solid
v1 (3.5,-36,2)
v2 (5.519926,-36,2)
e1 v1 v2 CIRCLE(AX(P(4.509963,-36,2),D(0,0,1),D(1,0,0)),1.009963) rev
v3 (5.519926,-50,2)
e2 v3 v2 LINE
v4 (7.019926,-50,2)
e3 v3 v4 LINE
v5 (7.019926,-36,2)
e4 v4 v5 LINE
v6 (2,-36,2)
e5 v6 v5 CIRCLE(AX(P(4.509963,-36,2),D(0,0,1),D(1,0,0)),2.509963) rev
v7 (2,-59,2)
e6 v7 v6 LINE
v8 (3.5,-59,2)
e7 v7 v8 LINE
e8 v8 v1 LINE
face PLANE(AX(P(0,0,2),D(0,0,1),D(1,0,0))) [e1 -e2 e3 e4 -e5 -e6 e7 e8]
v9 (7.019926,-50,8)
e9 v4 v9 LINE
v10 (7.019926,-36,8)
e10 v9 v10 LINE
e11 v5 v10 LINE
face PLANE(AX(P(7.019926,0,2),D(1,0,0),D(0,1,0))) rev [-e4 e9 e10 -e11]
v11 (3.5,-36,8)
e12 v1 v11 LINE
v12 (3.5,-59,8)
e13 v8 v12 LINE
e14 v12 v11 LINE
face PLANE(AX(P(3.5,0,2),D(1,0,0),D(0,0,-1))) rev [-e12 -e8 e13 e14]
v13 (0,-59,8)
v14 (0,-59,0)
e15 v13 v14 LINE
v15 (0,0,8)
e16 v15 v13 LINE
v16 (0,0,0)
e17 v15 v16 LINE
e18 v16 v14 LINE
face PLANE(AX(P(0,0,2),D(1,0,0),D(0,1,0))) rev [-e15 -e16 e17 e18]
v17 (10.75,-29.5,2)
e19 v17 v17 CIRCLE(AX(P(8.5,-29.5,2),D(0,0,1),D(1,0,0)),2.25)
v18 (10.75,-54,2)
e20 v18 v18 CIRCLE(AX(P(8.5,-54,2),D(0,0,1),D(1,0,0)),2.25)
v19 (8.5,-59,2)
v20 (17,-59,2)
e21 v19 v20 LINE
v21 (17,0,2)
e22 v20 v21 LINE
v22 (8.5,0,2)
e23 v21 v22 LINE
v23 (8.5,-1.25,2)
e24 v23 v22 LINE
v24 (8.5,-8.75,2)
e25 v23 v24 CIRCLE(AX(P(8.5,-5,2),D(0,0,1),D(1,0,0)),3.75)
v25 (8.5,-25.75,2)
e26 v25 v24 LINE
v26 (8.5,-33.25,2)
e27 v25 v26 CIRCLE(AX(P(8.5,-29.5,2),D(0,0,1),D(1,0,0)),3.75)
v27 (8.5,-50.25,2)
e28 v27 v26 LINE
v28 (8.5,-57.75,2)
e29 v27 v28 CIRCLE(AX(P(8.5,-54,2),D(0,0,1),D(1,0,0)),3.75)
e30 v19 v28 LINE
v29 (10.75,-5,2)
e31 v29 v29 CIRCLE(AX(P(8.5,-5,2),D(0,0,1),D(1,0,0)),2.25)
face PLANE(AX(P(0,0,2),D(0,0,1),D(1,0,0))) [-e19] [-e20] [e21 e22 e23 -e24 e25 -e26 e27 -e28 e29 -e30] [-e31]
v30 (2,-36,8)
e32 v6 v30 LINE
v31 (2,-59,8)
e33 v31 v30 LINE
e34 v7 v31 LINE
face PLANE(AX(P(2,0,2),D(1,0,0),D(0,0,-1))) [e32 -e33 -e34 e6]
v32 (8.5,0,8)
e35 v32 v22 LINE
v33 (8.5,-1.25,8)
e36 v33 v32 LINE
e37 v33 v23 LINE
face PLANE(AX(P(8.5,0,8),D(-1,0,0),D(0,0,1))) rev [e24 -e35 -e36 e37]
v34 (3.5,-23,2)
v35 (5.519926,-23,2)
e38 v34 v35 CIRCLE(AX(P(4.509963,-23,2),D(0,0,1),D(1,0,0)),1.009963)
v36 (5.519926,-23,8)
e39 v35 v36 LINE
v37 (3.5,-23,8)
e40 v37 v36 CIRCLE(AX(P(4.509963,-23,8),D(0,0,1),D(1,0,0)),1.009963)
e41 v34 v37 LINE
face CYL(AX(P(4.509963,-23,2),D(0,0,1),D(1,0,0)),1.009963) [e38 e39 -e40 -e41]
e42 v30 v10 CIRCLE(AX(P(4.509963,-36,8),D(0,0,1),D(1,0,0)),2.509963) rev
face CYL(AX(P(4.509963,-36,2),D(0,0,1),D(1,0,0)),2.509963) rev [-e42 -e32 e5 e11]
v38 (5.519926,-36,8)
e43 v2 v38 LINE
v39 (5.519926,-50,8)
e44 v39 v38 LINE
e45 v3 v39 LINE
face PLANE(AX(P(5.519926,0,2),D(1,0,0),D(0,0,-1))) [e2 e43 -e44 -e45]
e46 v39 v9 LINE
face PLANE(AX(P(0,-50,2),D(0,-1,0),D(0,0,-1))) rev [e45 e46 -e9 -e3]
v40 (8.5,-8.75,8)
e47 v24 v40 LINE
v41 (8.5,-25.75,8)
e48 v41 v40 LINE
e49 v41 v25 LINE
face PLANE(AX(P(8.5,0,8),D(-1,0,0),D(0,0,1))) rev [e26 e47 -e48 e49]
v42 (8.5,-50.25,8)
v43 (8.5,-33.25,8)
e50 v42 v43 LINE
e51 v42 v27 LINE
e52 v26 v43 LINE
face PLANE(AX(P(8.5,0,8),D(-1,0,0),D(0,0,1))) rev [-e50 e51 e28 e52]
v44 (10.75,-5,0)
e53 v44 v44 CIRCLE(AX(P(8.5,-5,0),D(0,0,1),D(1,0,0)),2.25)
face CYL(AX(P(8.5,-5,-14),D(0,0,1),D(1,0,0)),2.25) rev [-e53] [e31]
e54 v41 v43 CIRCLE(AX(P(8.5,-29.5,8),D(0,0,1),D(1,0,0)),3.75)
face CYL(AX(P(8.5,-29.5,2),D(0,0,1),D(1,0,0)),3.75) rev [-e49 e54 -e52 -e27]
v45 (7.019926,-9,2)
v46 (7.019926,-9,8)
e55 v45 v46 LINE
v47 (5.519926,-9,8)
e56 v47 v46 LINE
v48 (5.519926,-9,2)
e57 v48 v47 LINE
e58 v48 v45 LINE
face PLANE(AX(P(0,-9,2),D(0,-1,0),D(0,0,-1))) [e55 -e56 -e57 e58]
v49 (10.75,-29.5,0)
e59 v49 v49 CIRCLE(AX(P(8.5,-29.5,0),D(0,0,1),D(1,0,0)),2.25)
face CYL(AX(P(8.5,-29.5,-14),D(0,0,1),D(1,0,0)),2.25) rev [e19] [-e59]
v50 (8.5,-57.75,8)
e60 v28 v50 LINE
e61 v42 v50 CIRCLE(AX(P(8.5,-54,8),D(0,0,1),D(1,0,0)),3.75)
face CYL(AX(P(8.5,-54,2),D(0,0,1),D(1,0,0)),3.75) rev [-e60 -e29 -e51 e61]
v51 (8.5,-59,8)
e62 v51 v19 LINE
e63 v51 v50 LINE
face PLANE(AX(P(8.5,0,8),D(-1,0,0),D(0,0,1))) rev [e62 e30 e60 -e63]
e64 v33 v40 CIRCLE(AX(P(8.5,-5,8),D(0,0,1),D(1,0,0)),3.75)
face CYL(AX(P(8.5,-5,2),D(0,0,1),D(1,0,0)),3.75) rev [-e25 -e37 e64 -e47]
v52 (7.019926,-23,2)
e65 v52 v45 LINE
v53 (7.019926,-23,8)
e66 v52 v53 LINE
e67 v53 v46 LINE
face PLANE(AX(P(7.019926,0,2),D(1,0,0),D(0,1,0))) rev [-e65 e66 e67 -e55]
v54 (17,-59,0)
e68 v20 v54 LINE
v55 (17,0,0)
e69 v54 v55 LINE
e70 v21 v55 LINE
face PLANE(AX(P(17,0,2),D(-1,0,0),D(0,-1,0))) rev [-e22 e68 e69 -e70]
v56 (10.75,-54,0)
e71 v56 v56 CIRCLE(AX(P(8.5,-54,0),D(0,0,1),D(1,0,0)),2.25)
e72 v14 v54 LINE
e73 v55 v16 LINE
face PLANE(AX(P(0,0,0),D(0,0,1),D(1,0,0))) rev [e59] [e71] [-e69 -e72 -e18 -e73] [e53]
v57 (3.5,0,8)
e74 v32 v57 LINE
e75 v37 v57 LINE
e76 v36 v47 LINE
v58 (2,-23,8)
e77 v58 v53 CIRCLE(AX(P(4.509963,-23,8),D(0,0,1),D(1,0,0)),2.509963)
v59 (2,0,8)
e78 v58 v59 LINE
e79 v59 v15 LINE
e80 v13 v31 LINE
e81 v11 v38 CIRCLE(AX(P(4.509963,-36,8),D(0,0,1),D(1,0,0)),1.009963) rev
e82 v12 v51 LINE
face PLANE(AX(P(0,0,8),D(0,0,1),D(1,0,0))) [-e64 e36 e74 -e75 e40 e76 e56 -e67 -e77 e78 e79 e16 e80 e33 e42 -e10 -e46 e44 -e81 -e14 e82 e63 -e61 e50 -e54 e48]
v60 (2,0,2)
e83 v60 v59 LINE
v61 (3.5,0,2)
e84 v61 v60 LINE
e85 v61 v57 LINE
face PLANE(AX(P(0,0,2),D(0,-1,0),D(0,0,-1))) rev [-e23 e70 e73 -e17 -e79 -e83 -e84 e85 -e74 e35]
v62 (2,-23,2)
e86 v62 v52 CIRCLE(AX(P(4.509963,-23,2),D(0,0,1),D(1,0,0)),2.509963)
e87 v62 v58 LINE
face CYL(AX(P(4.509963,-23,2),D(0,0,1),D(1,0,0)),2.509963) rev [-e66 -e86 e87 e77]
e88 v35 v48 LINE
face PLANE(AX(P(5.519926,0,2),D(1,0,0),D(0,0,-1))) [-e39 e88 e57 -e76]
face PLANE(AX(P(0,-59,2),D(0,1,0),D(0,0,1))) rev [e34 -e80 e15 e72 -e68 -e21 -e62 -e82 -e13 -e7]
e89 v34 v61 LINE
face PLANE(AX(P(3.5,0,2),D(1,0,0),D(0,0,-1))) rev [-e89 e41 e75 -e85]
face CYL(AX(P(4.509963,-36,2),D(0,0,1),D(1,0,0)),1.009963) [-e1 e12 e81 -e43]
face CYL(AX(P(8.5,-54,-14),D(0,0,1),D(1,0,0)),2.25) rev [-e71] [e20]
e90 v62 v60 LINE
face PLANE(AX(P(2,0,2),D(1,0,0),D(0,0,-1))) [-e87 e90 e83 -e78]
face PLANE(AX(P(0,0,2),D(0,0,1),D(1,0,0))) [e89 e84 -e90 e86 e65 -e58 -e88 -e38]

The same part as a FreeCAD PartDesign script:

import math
import FreeCAD as App
import Part
import Sketcher

V = App.Vector


def add_polygon(sketch, points):
    """Adds a closed chain of lines whose ends are joined by coincident constraints."""
    first, n = sketch.GeometryCount, len(points)
    for a, b in zip(points, points[1:] + points[:1]):
        sketch.addGeometry(Part.LineSegment(App.Vector(*a, 0), App.Vector(*b, 0)), False)
    for i in range(n):
        sketch.addConstraint(Sketcher.Constraint("Coincident", first + i, 2, first + (i + 1) % n, 1))

doc = App.newDocument("Part")
body = doc.addObject("PartDesign::Body", "Body")

# Sketch on XY plane
sketch1 = body.newObject("Sketcher::SketchObject", "Sketch")
sketch1.AttachmentSupport = (doc.getObject("XY_Plane"), [""])
sketch1.MapMode = "FlatFace"
add_polygon(sketch1, [(0, 0), (0, -59), (17, -59), (17, 0)])  # lines 0-3
sketch1.addConstraint(Sketcher.Constraint("Vertical", 0))
sketch1.addConstraint(Sketcher.Constraint("Horizontal", 1))
sketch1.addConstraint(Sketcher.Constraint("Vertical", 2))
sketch1.addConstraint(Sketcher.Constraint("Horizontal", 3))
sketch1.addConstraint(Sketcher.Constraint("Coincident", 3, 2, -1, 1))
sketch1.addConstraint(Sketcher.Constraint("DistanceX", 1, 1, 1, 2, 17.0))
sketch1.addConstraint(Sketcher.Constraint("DistanceY", 0, 2, 0, 1, 59.0))
pad1 = body.newObject("PartDesign::Pad", "Pad")
pad1.Profile = sketch1
pad1.Length = 2

# Sketch on XY plane
sketch2 = body.newObject("Sketcher::SketchObject", "Sketch001")
sketch2.AttachmentSupport = (doc.getObject("XY_Plane"), [""])
sketch2.MapMode = "FlatFace"
sketch2.AttachmentOffset = App.Placement(V(0, 0, 2), App.Rotation())
add_polygon(sketch2, [(0, 0), (0, -59), (8, -59), (8, 0)])  # lines 0-3
sketch2.addConstraint(Sketcher.Constraint("Vertical", 0))
sketch2.addConstraint(Sketcher.Constraint("Horizontal", 1))
sketch2.addConstraint(Sketcher.Constraint("Vertical", 2))
sketch2.addConstraint(Sketcher.Constraint("Horizontal", 3))
sketch2.addConstraint(Sketcher.Constraint("Coincident", 3, 2, -1, 1))
sketch2.addConstraint(Sketcher.Constraint("DistanceY", 0, 2, 0, 1, 59.0))
sketch2.addConstraint(Sketcher.Constraint("DistanceX", 1, 1, 1, 2, 8.5))
pad2 = body.newObject("PartDesign::Pad", "Pad001")
pad2.Profile = sketch2
pad2.Length = 6

# Sketch on XY plane
sketch3 = body.newObject("Sketcher::SketchObject", "Sketch002")
sketch3.AttachmentSupport = (doc.getObject("XY_Plane"), [""])
sketch3.MapMode = "FlatFace"
sketch3.AttachmentOffset = App.Placement(V(0, 0, 8), App.Rotation())
sketch3.addGeometry(Part.LineSegment(V(2, -36, 0), V(2, -59, 0)), False)
sketch3.addGeometry(Part.LineSegment(V(2, -59, 0), V(3.5, -59, 0)), False)
sketch3.addGeometry(Part.LineSegment(V(3.5, -59, 0), V(3.5, -36, 0)), False)
sketch3.addGeometry(Part.ArcOfCircle(Part.Circle(V(4.5, -36, 0), V(0, 0, 1), 1), math.radians(0), math.radians(180)), False)
sketch3.addGeometry(Part.LineSegment(V(5.5, -36, 0), V(5.5, -50, 0)), False)
sketch3.addGeometry(Part.LineSegment(V(5.5, -50, 0), V(7, -50, 0)), False)
sketch3.addGeometry(Part.LineSegment(V(7, -50, 0), V(7, -36, 0)), False)
sketch3.addGeometry(Part.ArcOfCircle(Part.Circle(V(4.5, -36, 0), V(0, 0, 1), 2.5), math.radians(0), math.radians(66)), False)
sketch3.addGeometry(Part.ArcOfCircle(Part.Circle(V(4.5, -36, 0), V(0, 0, 1), 2.5), math.radians(66), math.radians(114)), False)
sketch3.addGeometry(Part.ArcOfCircle(Part.Circle(V(4.5, -36, 0), V(0, 0, 1), 2.5), math.radians(114), math.radians(180)), False)
sketch3.addGeometry(Part.LineSegment(V(5.5, -9, 0), V(5.5, -23, 0)), False)
sketch3.addGeometry(Part.ArcOfCircle(Part.Circle(V(4.5, -23, 0), V(0, 0, 1), 1), math.radians(180), math.radians(360)), False)
sketch3.addGeometry(Part.LineSegment(V(3.5, -23, 0), V(3.5, 0, 0)), False)
sketch3.addGeometry(Part.LineSegment(V(3.5, 0, 0), V(2, 0, 0)), False)
sketch3.addGeometry(Part.LineSegment(V(2, 0, 0), V(2, -23, 0)), False)
sketch3.addGeometry(Part.ArcOfCircle(Part.Circle(V(4.5, -23, 0), V(0, 0, 1), 2.5), math.radians(180), math.radians(246)), False)
sketch3.addGeometry(Part.ArcOfCircle(Part.Circle(V(4.5, -23, 0), V(0, 0, 1), 2.5), math.radians(-114), math.radians(-66)), False)
sketch3.addGeometry(Part.ArcOfCircle(Part.Circle(V(4.5, -23, 0), V(0, 0, 1), 2.5), math.radians(-66), math.radians(0)), False)
sketch3.addGeometry(Part.LineSegment(V(7, -23, 0), V(7, -9, 0)), False)
sketch3.addGeometry(Part.LineSegment(V(7, -9, 0), V(5.5, -9, 0)), False)
sketch3.addConstraint(Sketcher.Constraint("Coincident", 0, 2, 1, 1))
sketch3.addConstraint(Sketcher.Constraint("Coincident", 1, 2, 2, 1))
sketch3.addConstraint(Sketcher.Constraint("Tangent", 2, 2, 3, 2))
sketch3.addConstraint(Sketcher.Constraint("Tangent", 3, 1, 4, 1))
sketch3.addConstraint(Sketcher.Constraint("Coincident", 4, 2, 5, 1))
sketch3.addConstraint(Sketcher.Constraint("Coincident", 5, 2, 6, 1))
sketch3.addConstraint(Sketcher.Constraint("Tangent", 6, 2, 7, 1))
sketch3.addConstraint(Sketcher.Constraint("Tangent", 7, 2, 8, 1))
sketch3.addConstraint(Sketcher.Constraint("Tangent", 8, 2, 9, 1))
sketch3.addConstraint(Sketcher.Constraint("Tangent", 9, 2, 0, 1))
sketch3.addConstraint(Sketcher.Constraint("Tangent", 10, 2, 11, 2))
sketch3.addConstraint(Sketcher.Constraint("Tangent", 11, 1, 12, 1))
sketch3.addConstraint(Sketcher.Constraint("Coincident", 12, 2, 13, 1))
sketch3.addConstraint(Sketcher.Constraint("Coincident", 13, 2, 14, 1))
sketch3.addConstraint(Sketcher.Constraint("Tangent", 14, 2, 15, 1))
sketch3.addConstraint(Sketcher.Constraint("Tangent", 15, 2, 16, 1))
sketch3.addConstraint(Sketcher.Constraint("Tangent", 16, 2, 17, 1))
sketch3.addConstraint(Sketcher.Constraint("Tangent", 17, 2, 18, 1))
sketch3.addConstraint(Sketcher.Constraint("Coincident", 18, 2, 19, 1))
sketch3.addConstraint(Sketcher.Constraint("Coincident", 19, 2, 10, 1))
sketch3.addConstraint(Sketcher.Constraint("Vertical", 0))
sketch3.addConstraint(Sketcher.Constraint("Horizontal", 1))
sketch3.addConstraint(Sketcher.Constraint("Vertical", 2))
sketch3.addConstraint(Sketcher.Constraint("Vertical", 4))
sketch3.addConstraint(Sketcher.Constraint("Horizontal", 5))
sketch3.addConstraint(Sketcher.Constraint("Vertical", 6))
sketch3.addConstraint(Sketcher.Constraint("Vertical", 10))
sketch3.addConstraint(Sketcher.Constraint("Vertical", 12))
sketch3.addConstraint(Sketcher.Constraint("Horizontal", 13))
sketch3.addConstraint(Sketcher.Constraint("Vertical", 14))
sketch3.addConstraint(Sketcher.Constraint("Vertical", 18))
sketch3.addConstraint(Sketcher.Constraint("Horizontal", 19))
sketch3.addConstraint(Sketcher.Constraint("Coincident", 7, 3, 3, 3))
sketch3.addConstraint(Sketcher.Constraint("Coincident", 9, 3, 3, 3))
sketch3.addConstraint(Sketcher.Constraint("Coincident", 15, 3, 11, 3))
sketch3.addConstraint(Sketcher.Constraint("Coincident", 17, 3, 11, 3))
sketch3.addConstraint(Sketcher.Constraint("Equal", 3, 11))
sketch3.addConstraint(Sketcher.Constraint("Equal", 9, 15))
sketch3.addConstraint(Sketcher.Constraint("PointOnObject", 12, 2, -1))
sketch3.addConstraint(Sketcher.Constraint("Horizontal", 7, 2, 8, 2))
sketch3.addConstraint(Sketcher.Constraint("Horizontal", 15, 2, 16, 2))
sketch3.addConstraint(Sketcher.Constraint("Vertical", 9, 3, 11, 3))
sketch3.addConstraint(Sketcher.Constraint("Vertical", 4, 2, 7, 2))
sketch3.addConstraint(Sketcher.Constraint("Vertical", 12, 2, 15, 2))
sketch3.addConstraint(Sketcher.Constraint("Equal", 6, 10))
sketch3.addConstraint(Sketcher.Constraint("Equal", 2, 12))
sketch3.addConstraint(Sketcher.Constraint("DistanceY", 0, 2, 0, 1, 23.0))
sketch3.addConstraint(Sketcher.Constraint("DistanceY", 4, 2, 4, 1, 14.0))
sketch3.addConstraint(Sketcher.Constraint("DistanceX", 1, 1, 1, 2, 1.5))
sketch3.addConstraint(Sketcher.Constraint("DistanceY", 3, 3, -1, 1, 36.0))
sketch3.addConstraint(Sketcher.Constraint("DistanceX", -1, 1, 0, 2, 2.0))
sketch3.addConstraint(Sketcher.Constraint("Radius", 3, 1.009963))
pocket1 = body.newObject("PartDesign::Pocket", "Pocket")
pocket1.Profile = sketch3
pocket1.Length = 6

# Sketch on XY plane
sketch4 = body.newObject("Sketcher::SketchObject", "Sketch003")
sketch4.AttachmentSupport = (doc.getObject("XY_Plane"), [""])
sketch4.MapMode = "FlatFace"
sketch4.AttachmentOffset = App.Placement(V(0, 0, 8), App.Rotation())
sketch4.addGeometry(Part.Circle(V(8.5, -29.5, 0), V(0, 0, 1), 2.2), False)
sketch4.addGeometry(Part.Circle(V(8.5, -54, 0), V(0, 0, 1), 2.2), False)
sketch4.addGeometry(Part.Circle(V(8.5, -5, 0), V(0, 0, 1), 2.2), False)
sketch4.addConstraint(Sketcher.Constraint("Equal", 0, 1))
sketch4.addConstraint(Sketcher.Constraint("Equal", 1, 2))
sketch4.addConstraint(Sketcher.Constraint("Vertical", 0, 3, 1, 3))
sketch4.addConstraint(Sketcher.Constraint("Vertical", 1, 3, 2, 3))
sketch4.addConstraint(Sketcher.Constraint("Diameter", 0, 4.5))
sketch4.addConstraint(Sketcher.Constraint("DistanceY", 1, 3, -1, 1, 54.0))
sketch4.addConstraint(Sketcher.Constraint("DistanceY", 2, 3, -1, 1, 5.0))
sketch4.addConstraint(Sketcher.Constraint("DistanceX", -1, 1, 0, 3, 8.5))
sketch4.addConstraint(Sketcher.Constraint("DistanceY", 0, 3, -1, 1, 29.5))
pocket2 = body.newObject("PartDesign::Pocket", "Pocket001")
pocket2.Profile = sketch4
pocket2.Length = 22

# Sketch on XY plane
sketch5 = body.newObject("Sketcher::SketchObject", "Sketch004")
sketch5.AttachmentSupport = (doc.getObject("XY_Plane"), [""])
sketch5.MapMode = "FlatFace"
sketch5.AttachmentOffset = App.Placement(V(0, 0, 8), App.Rotation())
sketch5.addGeometry(Part.Circle(V(8.5, -29.5, 0), V(0, 0, 1), 3.8), False)
sketch5.addGeometry(Part.Circle(V(8.5, -5, 0), V(0, 0, 1), 3.8), False)
sketch5.addGeometry(Part.Circle(V(8.5, -54, 0), V(0, 0, 1), 3.8), False)
sketch5.addConstraint(Sketcher.Constraint("Equal", 0, 1))
sketch5.addConstraint(Sketcher.Constraint("Equal", 1, 2))
sketch5.addConstraint(Sketcher.Constraint("Vertical", 0, 3, 1, 3))
sketch5.addConstraint(Sketcher.Constraint("Vertical", 1, 3, 2, 3))
sketch5.addConstraint(Sketcher.Constraint("Diameter", 0, 7.5))
sketch5.addConstraint(Sketcher.Constraint("DistanceY", 1, 3, -1, 1, 5.0))
sketch5.addConstraint(Sketcher.Constraint("DistanceY", 2, 3, -1, 1, 54.0))
sketch5.addConstraint(Sketcher.Constraint("DistanceX", -1, 1, 0, 3, 8.5))
sketch5.addConstraint(Sketcher.Constraint("DistanceY", 0, 3, -1, 1, 29.5))
pocket3 = body.newObject("PartDesign::Pocket", "Pocket002")
pocket3.Profile = sketch5
pocket3.Length = 6

doc.recompute()
